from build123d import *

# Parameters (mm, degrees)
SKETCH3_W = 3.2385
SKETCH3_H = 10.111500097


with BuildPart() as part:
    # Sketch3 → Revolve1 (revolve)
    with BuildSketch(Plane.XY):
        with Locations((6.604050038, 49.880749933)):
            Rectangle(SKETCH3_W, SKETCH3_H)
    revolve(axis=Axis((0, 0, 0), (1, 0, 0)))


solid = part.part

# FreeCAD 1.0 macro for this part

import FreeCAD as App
import Part
import Sketcher
Q = App.Units.Quantity


def add_polygon(sketch, points):
    """Adds a closed chain of lines whose ends are joined by coincident constraints."""
    first, n = sketch.GeometryCount, len(points)
    for a, b in zip(points, points[1:] + points[:1]):
        sketch.addGeometry(Part.LineSegment(App.Vector(*a, 0), App.Vector(*b, 0)), False)
    for i in range(n):
        sketch.addConstraint(Sketcher.Constraint("Coincident", first + i, 2, first + (i + 1) % n, 1))

doc = App.newDocument("Part")
params = doc.addObject("Spreadsheet::Sheet", "Params")
for row, (alias, value) in enumerate([
    ("revolution_angle", "360 deg"),
], start=1):
    params.set(f"A{row}", alias)
    params.set(f"B{row}", "=" + value)
    params.setAlias(f"B{row}", alias)

body = doc.addObject("PartDesign::Body", "Body")

sketch1 = body.newObject("Sketcher::SketchObject", "Sketch")
sketch1.AttachmentSupport = (doc.getObject("XY_Plane"), [""])
sketch1.MapMode = "FlatFace"
add_polygon(sketch1, [(5, 54.9), (5, 44.8), (8.2, 44.8), (8.2, 54.9)])
sketch1.addConstraint([
    Sketcher.Constraint("Vertical", 0),
    Sketcher.Constraint("Horizontal", 1),
    Sketcher.Constraint("Vertical", 2),
    Sketcher.Constraint("Horizontal", 3),
    Sketcher.Constraint("DistanceX", 1, 1, 1, 2, Q("3.2385 mm")),
    Sketcher.Constraint("DistanceY", 0, 2, 0, 1, Q("10.1115 mm")),
    Sketcher.Constraint("DistanceY", -1, 1, 0, 2, Q("44.825 mm")),
    Sketcher.Constraint("DistanceX", -1, 1, 0, 2, Q("4.9848 mm")),
])
revolution = body.newObject("PartDesign::Revolution", "Revolution")
revolution.Profile = sketch1
revolution.ReferenceAxis = (sketch1, ["H_Axis"])
revolution.setExpression("Angle", "Params.revolution_angle")

doc.recompute()
